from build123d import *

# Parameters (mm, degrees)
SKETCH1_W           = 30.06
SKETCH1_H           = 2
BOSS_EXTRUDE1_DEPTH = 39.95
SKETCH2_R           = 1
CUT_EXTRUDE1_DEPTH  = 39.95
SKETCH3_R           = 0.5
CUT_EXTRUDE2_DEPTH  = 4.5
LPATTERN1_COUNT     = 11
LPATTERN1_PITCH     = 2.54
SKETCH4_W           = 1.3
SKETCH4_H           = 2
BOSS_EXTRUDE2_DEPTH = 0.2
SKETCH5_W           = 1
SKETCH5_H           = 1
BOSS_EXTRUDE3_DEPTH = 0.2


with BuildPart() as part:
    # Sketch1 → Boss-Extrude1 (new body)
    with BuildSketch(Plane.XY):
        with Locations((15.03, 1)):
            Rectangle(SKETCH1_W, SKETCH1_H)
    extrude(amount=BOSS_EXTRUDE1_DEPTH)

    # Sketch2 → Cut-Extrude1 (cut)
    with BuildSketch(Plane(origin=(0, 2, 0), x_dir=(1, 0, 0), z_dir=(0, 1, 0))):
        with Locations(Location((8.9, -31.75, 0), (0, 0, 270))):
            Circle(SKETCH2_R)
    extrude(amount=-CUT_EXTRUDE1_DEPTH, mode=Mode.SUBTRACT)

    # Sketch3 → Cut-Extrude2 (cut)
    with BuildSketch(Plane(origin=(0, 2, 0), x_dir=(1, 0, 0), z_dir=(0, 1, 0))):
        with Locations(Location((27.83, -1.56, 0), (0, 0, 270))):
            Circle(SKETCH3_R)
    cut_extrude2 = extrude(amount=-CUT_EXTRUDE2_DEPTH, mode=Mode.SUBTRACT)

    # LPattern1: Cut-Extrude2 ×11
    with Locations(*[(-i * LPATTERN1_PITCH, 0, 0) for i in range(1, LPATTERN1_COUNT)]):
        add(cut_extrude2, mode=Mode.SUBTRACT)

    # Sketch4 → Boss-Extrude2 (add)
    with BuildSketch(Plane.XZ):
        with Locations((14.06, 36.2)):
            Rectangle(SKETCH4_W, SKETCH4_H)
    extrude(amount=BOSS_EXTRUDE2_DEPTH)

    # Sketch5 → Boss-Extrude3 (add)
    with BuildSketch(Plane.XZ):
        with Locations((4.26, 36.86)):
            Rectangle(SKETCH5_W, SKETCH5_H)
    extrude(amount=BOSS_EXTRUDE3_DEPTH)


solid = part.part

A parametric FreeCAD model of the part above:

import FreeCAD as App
import Part
import Sketcher
from FreeCAD import Vector
Q = App.Units.Quantity


def add_polygon(sketch, points):
    """Adds a closed chain of lines whose ends are joined by coincident constraints."""
    first, n = sketch.GeometryCount, len(points)
    for a, b in zip(points, points[1:] + points[:1]):
        sketch.addGeometry(Part.LineSegment(App.Vector(*a, 0), App.Vector(*b, 0)), False)
    for i in range(n):
        sketch.addConstraint(Sketcher.Constraint("Coincident", first + i, 2, first + (i + 1) % n, 1))

doc = App.newDocument("Part")
params = doc.addObject("Spreadsheet::Sheet", "Params")
for row, (alias, value) in enumerate([
    ("sketch1_height", "2 mm"),
    ("sketch1_width", "30.06 mm"),
    ("pad1_length", "39.95 mm"),
    ("sketch2_diameter", "2 mm"),
    ("pocket1_length", "39.95 mm"),
    ("sketch3_diameter", "1 mm"),
    ("pocket2_length", "4.5 mm"),
    ("linearpattern_pitch", "2.54 mm"),
    ("sketch4_height", "2 mm"),
    ("sketch4_width", "1.3 mm"),
    ("pad2_length", "0.2 mm"),
    ("sketch5_width", "1 mm"),
    ("pad3_length", "0.2 mm"),
], start=1):
    params.set(f"A{row}", alias)
    params.set(f"B{row}", "=" + value)
    params.setAlias(f"B{row}", alias)

body = doc.addObject("PartDesign::Body", "Body")

# Sketch on XY plane
sketch1 = body.newObject("Sketcher::SketchObject", "Sketch")
sketch1.AttachmentSupport = (doc.getObject("XY_Plane"), [""])
sketch1.MapMode = "FlatFace"
add_polygon(sketch1, [(0, 2), (0, 0), (30.1, 0), (30.1, 2)])  # lines 0-3
sketch1.addConstraint(Sketcher.Constraint("Vertical", 0))
sketch1.addConstraint(Sketcher.Constraint("Horizontal", 1))
sketch1.addConstraint(Sketcher.Constraint("Vertical", 2))
sketch1.addConstraint(Sketcher.Constraint("Horizontal", 3))
sketch1.addConstraint(Sketcher.Constraint("Coincident", 0, 2, -1, 1))
sketch1.addConstraint(Sketcher.Constraint("DistanceY", 0, 2, 0, 1, Q("2 mm")))
sketch1.addConstraint(Sketcher.Constraint("DistanceX", 1, 1, 1, 2, Q("30.06 mm")))
sketch1.setExpression("Constraints[9]", "Params.sketch1_height")
sketch1.setExpression("Constraints[10]", "Params.sketch1_width")
pad1 = body.newObject("PartDesign::Pad", "Pad")
pad1.Profile = sketch1
pad1.setExpression("Length", "Params.pad1_length")

# Sketch on XZ plane
sketch2 = body.newObject("Sketcher::SketchObject", "Sketch001")
sketch2.AttachmentSupport = (doc.getObject("XZ_Plane"), [""])
sketch2.MapMode = "FlatFace"
sketch2.AttachmentOffset = App.Placement(Vector(0, 0, -2), App.Rotation())
sketch2.addGeometry(Part.Circle(Vector(8.9, 31.8, 0), Vector(0, 0, 1), 1), False)
sketch2.addConstraint(Sketcher.Constraint("Diameter", 0, Q("2 mm")))
sketch2.addConstraint(Sketcher.Constraint("DistanceX", -1, 1, 0, 3, Q("8.9 mm")))
sketch2.addConstraint(Sketcher.Constraint("DistanceY", -1, 1, 0, 3, Q("31.75 mm")))
sketch2.setExpression("Constraints[0]", "Params.sketch2_diameter")
pocket1 = body.newObject("PartDesign::Pocket", "Pocket")
pocket1.Profile = sketch2
pocket1.setExpression("Length", "Params.pocket1_length")
pocket1.Reversed = True

# Sketch on XZ plane
sketch3 = body.newObject("Sketcher::SketchObject", "Sketch002")
sketch3.AttachmentSupport = (doc.getObject("XZ_Plane"), [""])
sketch3.MapMode = "FlatFace"
sketch3.AttachmentOffset = App.Placement(Vector(0, 0, -2), App.Rotation())
sketch3.addGeometry(Part.Circle(Vector(27.8, 1.6, 0), Vector(0, 0, 1), 0.5), False)
sketch3.addConstraint(Sketcher.Constraint("Diameter", 0, Q("1 mm")))
sketch3.addConstraint(Sketcher.Constraint("DistanceX", -1, 1, 0, 3, Q("27.83 mm")))
sketch3.addConstraint(Sketcher.Constraint("DistanceY", -1, 1, 0, 3, Q("1.56 mm")))
sketch3.setExpression("Constraints[0]", "Params.sketch3_diameter")
pocket2 = body.newObject("PartDesign::Pocket", "Pocket001")
pocket2.Profile = sketch3
pocket2.setExpression("Length", "Params.pocket2_length")
pocket2.Reversed = True
doc.recompute()

linearpattern = body.newObject("PartDesign::LinearPattern", "LinearPattern")
linearpattern.Originals = [pocket2]
linearpattern.Direction = (doc.getObject("X_Axis"), [""])
linearpattern.Mode = "offset"
linearpattern.setExpression("Offset", "Params.linearpattern_pitch")
linearpattern.Occurrences = 11
linearpattern.Reversed = True
body.Tip = linearpattern

# Sketch on XZ plane
sketch4 = body.newObject("Sketcher::SketchObject", "Sketch003")
sketch4.AttachmentSupport = (doc.getObject("XZ_Plane"), [""])
sketch4.MapMode = "FlatFace"
add_polygon(sketch4, [(13.4, 37.2), (13.4, 35.2), (14.7, 35.2), (14.7, 37.2)])  # lines 0-3
sketch4.addConstraint(Sketcher.Constraint("Vertical", 0))
sketch4.addConstraint(Sketcher.Constraint("Horizontal", 1))
sketch4.addConstraint(Sketcher.Constraint("Vertical", 2))
sketch4.addConstraint(Sketcher.Constraint("Horizontal", 3))
sketch4.addConstraint(Sketcher.Constraint("DistanceY", 0, 2, 0, 1, Q("2 mm")))
sketch4.addConstraint(Sketcher.Constraint("DistanceX", 1, 1, 1, 2, Q("1.3 mm")))
sketch4.addConstraint(Sketcher.Constraint("DistanceY", -1, 1, 0, 2, Q("35.2 mm")))
sketch4.addConstraint(Sketcher.Constraint("DistanceX", -1, 1, 0, 2, Q("13.41 mm")))
sketch4.setExpression("Constraints[8]", "Params.sketch4_height")
sketch4.setExpression("Constraints[9]", "Params.sketch4_width")
pad2 = body.newObject("PartDesign::Pad", "Pad001")
pad2.Profile = sketch4
pad2.setExpression("Length", "Params.pad2_length")

# Sketch on XZ plane
sketch5 = body.newObject("Sketcher::SketchObject", "Sketch004")
sketch5.AttachmentSupport = (doc.getObject("XZ_Plane"), [""])
sketch5.MapMode = "FlatFace"
add_polygon(sketch5, [(3.8, 37.4), (3.8, 36.4), (4.8, 36.4), (4.8, 37.4)])  # lines 0-3
sketch5.addConstraint(Sketcher.Constraint("Vertical", 0))
sketch5.addConstraint(Sketcher.Constraint("Horizontal", 1))
sketch5.addConstraint(Sketcher.Constraint("Vertical", 2))
sketch5.addConstraint(Sketcher.Constraint("Horizontal", 3))
sketch5.addConstraint(Sketcher.Constraint("Equal", 3, 0))
sketch5.addConstraint(Sketcher.Constraint("DistanceX", 1, 1, 1, 2, Q("1 mm")))
sketch5.addConstraint(Sketcher.Constraint("DistanceX", -1, 1, 0, 2, Q("3.76 mm")))
sketch5.addConstraint(Sketcher.Constraint("DistanceY", -1, 1, 0, 2, Q("36.36 mm")))
sketch5.setExpression("Constraints[9]", "Params.sketch5_width")
pad3 = body.newObject("PartDesign::Pad", "Pad002")
pad3.Profile = sketch5
pad3.setExpression("Length", "Params.pad3_length")

doc.recompute()
